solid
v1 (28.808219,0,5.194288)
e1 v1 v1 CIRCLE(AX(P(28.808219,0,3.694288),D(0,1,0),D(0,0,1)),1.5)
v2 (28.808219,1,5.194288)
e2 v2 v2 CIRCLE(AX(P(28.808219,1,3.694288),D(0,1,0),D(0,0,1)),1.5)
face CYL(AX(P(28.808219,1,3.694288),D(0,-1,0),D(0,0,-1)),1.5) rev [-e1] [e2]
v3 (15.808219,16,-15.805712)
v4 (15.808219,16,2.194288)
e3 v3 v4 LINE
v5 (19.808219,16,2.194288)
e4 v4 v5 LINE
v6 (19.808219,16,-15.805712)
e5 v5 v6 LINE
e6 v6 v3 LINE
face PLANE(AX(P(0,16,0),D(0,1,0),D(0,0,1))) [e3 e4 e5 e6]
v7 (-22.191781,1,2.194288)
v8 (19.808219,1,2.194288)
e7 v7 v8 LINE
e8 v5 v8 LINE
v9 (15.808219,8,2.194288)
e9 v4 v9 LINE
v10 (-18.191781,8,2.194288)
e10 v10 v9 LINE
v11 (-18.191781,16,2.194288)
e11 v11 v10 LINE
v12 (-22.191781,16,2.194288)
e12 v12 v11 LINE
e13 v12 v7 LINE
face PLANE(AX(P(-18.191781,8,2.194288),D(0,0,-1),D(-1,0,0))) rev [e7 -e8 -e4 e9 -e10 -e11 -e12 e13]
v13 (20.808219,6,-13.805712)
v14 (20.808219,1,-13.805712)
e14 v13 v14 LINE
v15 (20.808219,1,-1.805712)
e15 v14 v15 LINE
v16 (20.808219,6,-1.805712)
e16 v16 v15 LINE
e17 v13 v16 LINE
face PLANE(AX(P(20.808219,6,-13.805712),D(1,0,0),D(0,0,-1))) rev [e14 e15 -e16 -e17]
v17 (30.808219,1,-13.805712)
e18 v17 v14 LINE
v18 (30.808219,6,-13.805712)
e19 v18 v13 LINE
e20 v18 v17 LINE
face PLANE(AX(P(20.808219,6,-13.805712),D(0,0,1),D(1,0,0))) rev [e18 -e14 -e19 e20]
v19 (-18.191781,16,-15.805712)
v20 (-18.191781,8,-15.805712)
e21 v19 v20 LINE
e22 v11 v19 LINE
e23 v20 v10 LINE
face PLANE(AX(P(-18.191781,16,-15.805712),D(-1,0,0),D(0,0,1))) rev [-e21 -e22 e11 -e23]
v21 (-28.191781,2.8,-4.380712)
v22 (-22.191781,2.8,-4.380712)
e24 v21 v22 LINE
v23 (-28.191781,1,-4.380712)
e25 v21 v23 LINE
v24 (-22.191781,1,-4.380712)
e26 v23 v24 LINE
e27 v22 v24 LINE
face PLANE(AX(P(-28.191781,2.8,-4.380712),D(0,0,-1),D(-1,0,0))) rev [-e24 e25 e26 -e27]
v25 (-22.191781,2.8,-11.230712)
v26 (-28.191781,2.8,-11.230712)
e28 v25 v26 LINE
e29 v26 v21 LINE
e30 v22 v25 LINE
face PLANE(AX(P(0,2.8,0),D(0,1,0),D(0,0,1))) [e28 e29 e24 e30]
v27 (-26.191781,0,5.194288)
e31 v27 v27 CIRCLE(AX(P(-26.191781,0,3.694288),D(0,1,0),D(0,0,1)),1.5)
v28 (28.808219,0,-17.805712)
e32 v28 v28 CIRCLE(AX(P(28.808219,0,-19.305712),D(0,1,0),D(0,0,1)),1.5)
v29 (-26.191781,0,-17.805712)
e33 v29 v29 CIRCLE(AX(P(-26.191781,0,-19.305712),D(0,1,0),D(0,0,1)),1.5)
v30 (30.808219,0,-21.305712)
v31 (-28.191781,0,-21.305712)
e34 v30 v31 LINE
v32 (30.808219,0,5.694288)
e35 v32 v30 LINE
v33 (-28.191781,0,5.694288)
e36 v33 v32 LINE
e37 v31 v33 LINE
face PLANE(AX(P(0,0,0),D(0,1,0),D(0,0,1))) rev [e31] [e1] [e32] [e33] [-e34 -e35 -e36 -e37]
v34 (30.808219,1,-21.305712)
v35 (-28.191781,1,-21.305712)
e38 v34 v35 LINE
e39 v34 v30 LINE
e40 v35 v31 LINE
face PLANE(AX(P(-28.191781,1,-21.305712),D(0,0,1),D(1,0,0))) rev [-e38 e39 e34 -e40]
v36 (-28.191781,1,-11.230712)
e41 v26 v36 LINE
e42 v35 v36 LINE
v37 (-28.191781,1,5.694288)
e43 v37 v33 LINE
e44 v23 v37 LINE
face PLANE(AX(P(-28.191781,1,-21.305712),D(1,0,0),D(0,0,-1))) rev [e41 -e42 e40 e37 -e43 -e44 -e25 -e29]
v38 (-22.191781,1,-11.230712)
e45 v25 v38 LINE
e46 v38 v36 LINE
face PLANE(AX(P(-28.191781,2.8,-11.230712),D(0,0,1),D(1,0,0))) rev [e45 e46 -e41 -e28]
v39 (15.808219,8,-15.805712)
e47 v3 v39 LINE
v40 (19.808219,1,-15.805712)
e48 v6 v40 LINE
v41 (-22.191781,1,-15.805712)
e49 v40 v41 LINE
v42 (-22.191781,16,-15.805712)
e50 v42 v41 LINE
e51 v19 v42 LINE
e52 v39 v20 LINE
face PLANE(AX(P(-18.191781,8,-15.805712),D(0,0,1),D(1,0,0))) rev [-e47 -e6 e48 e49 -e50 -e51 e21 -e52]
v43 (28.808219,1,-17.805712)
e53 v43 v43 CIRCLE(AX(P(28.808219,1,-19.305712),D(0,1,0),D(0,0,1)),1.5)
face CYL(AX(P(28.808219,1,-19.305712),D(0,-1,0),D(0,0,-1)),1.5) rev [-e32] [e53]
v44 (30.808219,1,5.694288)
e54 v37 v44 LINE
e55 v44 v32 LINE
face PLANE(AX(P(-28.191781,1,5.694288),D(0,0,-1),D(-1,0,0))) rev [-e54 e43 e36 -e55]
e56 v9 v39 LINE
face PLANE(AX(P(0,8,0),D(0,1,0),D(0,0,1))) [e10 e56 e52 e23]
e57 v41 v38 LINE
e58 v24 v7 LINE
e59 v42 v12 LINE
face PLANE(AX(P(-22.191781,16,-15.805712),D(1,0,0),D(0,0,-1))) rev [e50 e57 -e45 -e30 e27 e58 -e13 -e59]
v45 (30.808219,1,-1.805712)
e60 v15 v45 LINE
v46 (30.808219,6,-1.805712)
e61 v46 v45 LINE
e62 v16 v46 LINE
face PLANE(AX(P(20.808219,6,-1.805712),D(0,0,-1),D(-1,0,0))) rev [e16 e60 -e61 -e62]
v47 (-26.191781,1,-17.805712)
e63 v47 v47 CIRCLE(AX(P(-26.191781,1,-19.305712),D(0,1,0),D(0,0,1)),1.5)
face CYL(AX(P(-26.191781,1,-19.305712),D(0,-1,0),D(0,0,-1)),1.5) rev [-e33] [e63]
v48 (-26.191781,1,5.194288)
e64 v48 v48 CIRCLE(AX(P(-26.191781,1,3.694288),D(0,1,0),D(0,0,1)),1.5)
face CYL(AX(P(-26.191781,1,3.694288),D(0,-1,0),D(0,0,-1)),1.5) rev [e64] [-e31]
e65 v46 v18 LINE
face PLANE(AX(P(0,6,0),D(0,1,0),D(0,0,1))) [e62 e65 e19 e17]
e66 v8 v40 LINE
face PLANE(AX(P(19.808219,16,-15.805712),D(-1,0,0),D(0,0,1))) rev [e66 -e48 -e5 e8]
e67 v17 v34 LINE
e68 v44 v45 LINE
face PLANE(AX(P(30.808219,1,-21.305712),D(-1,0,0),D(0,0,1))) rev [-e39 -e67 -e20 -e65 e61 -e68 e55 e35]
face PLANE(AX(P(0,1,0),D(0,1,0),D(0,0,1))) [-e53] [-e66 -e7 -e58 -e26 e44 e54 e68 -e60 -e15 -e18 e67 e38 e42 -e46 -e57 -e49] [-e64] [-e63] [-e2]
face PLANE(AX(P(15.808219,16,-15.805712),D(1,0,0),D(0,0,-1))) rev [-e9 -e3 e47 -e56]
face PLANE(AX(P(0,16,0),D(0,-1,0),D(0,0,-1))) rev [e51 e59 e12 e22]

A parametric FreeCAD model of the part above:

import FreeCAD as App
import Part
import Sketcher
from FreeCAD import Vector
Q = App.Units.Quantity

doc = App.newDocument("Part")
body = doc.addObject("PartDesign::Body", "Body")

# Sketch on XZ plane
sketch1 = body.newObject("Sketcher::SketchObject", "Sketch")
sketch1.AttachmentSupport = (doc.getObject("XZ_Plane"), [""])
sketch1.MapMode = "FlatFace"
sketch1.addGeometry([
    Part.LineSegment(Vector(-28.2, -21.3, 0), Vector(-28.2, 5.7, 0)),  # 0
    Part.LineSegment(Vector(-28.2, 5.7, 0), Vector(30.8, 5.7, 0)),  # 1
    Part.LineSegment(Vector(30.8, 5.7, 0), Vector(30.8, -21.3, 0)),  # 2
    Part.LineSegment(Vector(30.8, -21.3, 0), Vector(-28.2, -21.3, 0)),  # 3
    Part.Circle(Vector(-26.2, 3.7, 0), Vector(0, 0, 1), 1.5),  # 4
    Part.Circle(Vector(28.8, 3.7, 0), Vector(0, 0, 1), 1.5),  # 5
    Part.Circle(Vector(-26.2, -19.3, 0), Vector(0, 0, 1), 1.5),  # 6
    Part.Circle(Vector(28.8, -19.3, 0), Vector(0, 0, 1), 1.5),  # 7
], False)
sketch1.addConstraint([
    Sketcher.Constraint("Coincident", 0, 2, 1, 1),
    Sketcher.Constraint("Coincident", 1, 2, 2, 1),
    Sketcher.Constraint("Coincident", 2, 2, 3, 1),
    Sketcher.Constraint("Coincident", 3, 2, 0, 1),
    Sketcher.Constraint("Vertical", 0),
    Sketcher.Constraint("Horizontal", 1),
    Sketcher.Constraint("Vertical", 2),
    Sketcher.Constraint("Horizontal", 3),
    Sketcher.Constraint("Equal", 4, 5),
    Sketcher.Constraint("Equal", 5, 6),
    Sketcher.Constraint("Equal", 6, 7),
    Sketcher.Constraint("Horizontal", 4, 3, 5, 3),
    Sketcher.Constraint("Horizontal", 6, 3, 7, 3),
    Sketcher.Constraint("Vertical", 4, 3, 6, 3),
    Sketcher.Constraint("Vertical", 5, 3, 7, 3),
    Sketcher.Constraint("Diameter", 4, Q("3 mm")),
    Sketcher.Constraint("DistanceX", 1, 1, 1, 2, Q("59 mm")),
    Sketcher.Constraint("DistanceY", 0, 1, 0, 2, Q("27 mm")),
    Sketcher.Constraint("DistanceX", 4, 3, 5, 3, Q("55 mm")),
    Sketcher.Constraint("DistanceY", 6, 3, 4, 3, Q("23 mm")),
    Sketcher.Constraint("DistanceX", 0, 2, 4, 3, Q("2 mm")),
    Sketcher.Constraint("DistanceY", 4, 3, 0, 2, Q("2 mm")),
    Sketcher.Constraint("DistanceX", 4, 3, -1, 1, Q("26.191781 mm")),
    Sketcher.Constraint("DistanceY", -1, 1, 4, 3, Q("3.694288 mm")),
])
pad1 = body.newObject("PartDesign::Pad", "Pad")
pad1.Profile = sketch1
pad1.Length = 1
pad1.Reversed = True

# Sketch on XZ plane
sketch2 = body.newObject("Sketcher::SketchObject", "Sketch001")
sketch2.AttachmentSupport = (doc.getObject("XZ_Plane"), [""])
sketch2.MapMode = "FlatFace"
sketch2.AttachmentOffset = App.Placement(Vector(0, 0, -1), App.Rotation())
sketch2.addGeometry([
    Part.LineSegment(Vector(-18, -16, 0), Vector(-18, 2, 0)),
    Part.LineSegment(Vector(-18, 2, 0), Vector(16, 2, 0)),
    Part.LineSegment(Vector(16, 2, 0), Vector(16, -16, 0)),
    Part.LineSegment(Vector(16, -16, 0), Vector(-18, -16, 0)),
], False)
sketch2.addConstraint([
    Sketcher.Constraint("Coincident", 0, 2, 1, 1),
    Sketcher.Constraint("Coincident", 1, 2, 2, 1),
    Sketcher.Constraint("Coincident", 2, 2, 3, 1),
    Sketcher.Constraint("Coincident", 3, 2, 0, 1),
    Sketcher.Constraint("Vertical", 0),
    Sketcher.Constraint("Horizontal", 1),
    Sketcher.Constraint("Vertical", 2),
    Sketcher.Constraint("Horizontal", 3),
    Sketcher.Constraint("DistanceX", 1, 1, 1, 2, Q("34 mm")),
    Sketcher.Constraint("DistanceY", 0, 1, 0, 2, Q("18 mm")),
    Sketcher.Constraint("DistanceX", 0, 2, -1, 1, Q("18.191781 mm")),
    Sketcher.Constraint("DistanceY", -1, 1, 0, 2, Q("2.194288 mm")),
])
pad2 = body.newObject("PartDesign::Pad", "Pad001")
pad2.Profile = sketch2
pad2.Length = 7
pad2.Reversed = True

# Sketch on XZ plane
sketch3 = body.newObject("Sketcher::SketchObject", "Sketch002")
sketch3.AttachmentSupport = (doc.getObject("XZ_Plane"), [""])
sketch3.MapMode = "FlatFace"
sketch3.AttachmentOffset = App.Placement(Vector(0, 0, -1), App.Rotation())
sketch3.addGeometry([
    Part.LineSegment(Vector(-22.2, -15.8, 0), Vector(-22.2, 2.2, 0)),
    Part.LineSegment(Vector(-22.2, 2.2, 0), Vector(-18.2, 2.2, 0)),
    Part.LineSegment(Vector(-18.2, 2.2, 0), Vector(-18.2, -15.8, 0)),
    Part.LineSegment(Vector(-18.2, -15.8, 0), Vector(-22.2, -15.8, 0)),
], False)
sketch3.addConstraint([
    Sketcher.Constraint("Coincident", 0, 2, 1, 1),
    Sketcher.Constraint("Coincident", 1, 2, 2, 1),
    Sketcher.Constraint("Coincident", 2, 2, 3, 1),
    Sketcher.Constraint("Coincident", 3, 2, 0, 1),
    Sketcher.Constraint("Vertical", 0),
    Sketcher.Constraint("Horizontal", 1),
    Sketcher.Constraint("Vertical", 2),
    Sketcher.Constraint("Horizontal", 3),
    Sketcher.Constraint("DistanceX", 1, 1, 1, 2, Q("4 mm")),
    Sketcher.Constraint("DistanceY", 0, 1, 0, 2, Q("18 mm")),
    Sketcher.Constraint("DistanceX", 0, 2, -1, 1, Q("22.191781 mm")),
    Sketcher.Constraint("DistanceY", -1, 1, 0, 2, Q("2.194288 mm")),
])
pad3 = body.newObject("PartDesign::Pad", "Pad002")
pad3.Profile = sketch3
pad3.Length = 15
pad3.Reversed = True

# Sketch on XZ plane
sketch4 = body.newObject("Sketcher::SketchObject", "Sketch003")
sketch4.AttachmentSupport = (doc.getObject("XZ_Plane"), [""])
sketch4.MapMode = "FlatFace"
sketch4.AttachmentOffset = App.Placement(Vector(0, 0, -1), App.Rotation())
sketch4.addGeometry([
    Part.LineSegment(Vector(15.8, -15.8, 0), Vector(15.8, 2.2, 0)),
    Part.LineSegment(Vector(15.8, 2.2, 0), Vector(19.8, 2.2, 0)),
    Part.LineSegment(Vector(19.8, 2.2, 0), Vector(19.8, -15.8, 0)),
    Part.LineSegment(Vector(19.8, -15.8, 0), Vector(15.8, -15.8, 0)),
], False)
sketch4.addConstraint([
    Sketcher.Constraint("Coincident", 0, 2, 1, 1),
    Sketcher.Constraint("Coincident", 1, 2, 2, 1),
    Sketcher.Constraint("Coincident", 2, 2, 3, 1),
    Sketcher.Constraint("Coincident", 3, 2, 0, 1),
    Sketcher.Constraint("Vertical", 0),
    Sketcher.Constraint("Horizontal", 1),
    Sketcher.Constraint("Vertical", 2),
    Sketcher.Constraint("Horizontal", 3),
    Sketcher.Constraint("DistanceX", 1, 1, 1, 2, Q("4 mm")),
    Sketcher.Constraint("DistanceY", 0, 1, 0, 2, Q("18 mm")),
    Sketcher.Constraint("DistanceX", -1, 1, 0, 2, Q("15.808219 mm")),
    Sketcher.Constraint("DistanceY", -1, 1, 0, 2, Q("2.194288 mm")),
])
pad4 = body.newObject("PartDesign::Pad", "Pad003")
pad4.Profile = sketch4
pad4.Length = 15
pad4.Reversed = True

# Sketch on XZ plane
sketch5 = body.newObject("Sketcher::SketchObject", "Sketch004")
sketch5.AttachmentSupport = (doc.getObject("XZ_Plane"), [""])
sketch5.MapMode = "FlatFace"
sketch5.AttachmentOffset = App.Placement(Vector(0, 0, -1), App.Rotation())
sketch5.addGeometry([
    Part.LineSegment(Vector(21, -14, 0), Vector(21, -2, 0)),
    Part.LineSegment(Vector(21, -2, 0), Vector(31, -2, 0)),
    Part.LineSegment(Vector(31, -2, 0), Vector(31, -14, 0)),
    Part.LineSegment(Vector(31, -14, 0), Vector(21, -14, 0)),
], False)
sketch5.addConstraint([
    Sketcher.Constraint("Coincident", 0, 2, 1, 1),
    Sketcher.Constraint("Coincident", 1, 2, 2, 1),
    Sketcher.Constraint("Coincident", 2, 2, 3, 1),
    Sketcher.Constraint("Coincident", 3, 2, 0, 1),
    Sketcher.Constraint("Vertical", 0),
    Sketcher.Constraint("Horizontal", 1),
    Sketcher.Constraint("Vertical", 2),
    Sketcher.Constraint("Horizontal", 3),
    Sketcher.Constraint("DistanceX", 1, 1, 1, 2, Q("10 mm")),
    Sketcher.Constraint("DistanceY", 0, 1, 0, 2, Q("12 mm")),
    Sketcher.Constraint("DistanceX", -1, 1, 0, 2, Q("20.808219 mm")),
    Sketcher.Constraint("DistanceY", 0, 2, -1, 1, Q("1.805712 mm")),
])
pad5 = body.newObject("PartDesign::Pad", "Pad004")
pad5.Profile = sketch5
pad5.Length = 5
pad5.Reversed = True

# Sketch on XZ plane
sketch6 = body.newObject("Sketcher::SketchObject", "Sketch005")
sketch6.AttachmentSupport = (doc.getObject("XZ_Plane"), [""])
sketch6.MapMode = "FlatFace"
sketch6.AttachmentOffset = App.Placement(Vector(0, 0, -1), App.Rotation())
sketch6.addGeometry([
    Part.LineSegment(Vector(-28, -11, 0), Vector(-28, -4, 0)),
    Part.LineSegment(Vector(-28, -4, 0), Vector(-22, -4, 0)),
    Part.LineSegment(Vector(-22, -4, 0), Vector(-22, -11, 0)),
    Part.LineSegment(Vector(-22, -11, 0), Vector(-28, -11, 0)),
], False)
sketch6.addConstraint([
    Sketcher.Constraint("Coincident", 0, 2, 1, 1),
    Sketcher.Constraint("Coincident", 1, 2, 2, 1),
    Sketcher.Constraint("Coincident", 2, 2, 3, 1),
    Sketcher.Constraint("Coincident", 3, 2, 0, 1),
    Sketcher.Constraint("Vertical", 0),
    Sketcher.Constraint("Horizontal", 1),
    Sketcher.Constraint("Vertical", 2),
    Sketcher.Constraint("Horizontal", 3),
    Sketcher.Constraint("DistanceX", 1, 1, 1, 2, Q("6 mm")),
    Sketcher.Constraint("DistanceY", 0, 1, 0, 2, Q("6.85 mm")),
    Sketcher.Constraint("DistanceX", 0, 2, -1, 1, Q("28.191781 mm")),
    Sketcher.Constraint("DistanceY", 0, 2, -1, 1, Q("4.380712 mm")),
])
pad6 = body.newObject("PartDesign::Pad", "Pad005")
pad6.Profile = sketch6
pad6.Length = 1.8
pad6.Reversed = True

doc.recompute()
